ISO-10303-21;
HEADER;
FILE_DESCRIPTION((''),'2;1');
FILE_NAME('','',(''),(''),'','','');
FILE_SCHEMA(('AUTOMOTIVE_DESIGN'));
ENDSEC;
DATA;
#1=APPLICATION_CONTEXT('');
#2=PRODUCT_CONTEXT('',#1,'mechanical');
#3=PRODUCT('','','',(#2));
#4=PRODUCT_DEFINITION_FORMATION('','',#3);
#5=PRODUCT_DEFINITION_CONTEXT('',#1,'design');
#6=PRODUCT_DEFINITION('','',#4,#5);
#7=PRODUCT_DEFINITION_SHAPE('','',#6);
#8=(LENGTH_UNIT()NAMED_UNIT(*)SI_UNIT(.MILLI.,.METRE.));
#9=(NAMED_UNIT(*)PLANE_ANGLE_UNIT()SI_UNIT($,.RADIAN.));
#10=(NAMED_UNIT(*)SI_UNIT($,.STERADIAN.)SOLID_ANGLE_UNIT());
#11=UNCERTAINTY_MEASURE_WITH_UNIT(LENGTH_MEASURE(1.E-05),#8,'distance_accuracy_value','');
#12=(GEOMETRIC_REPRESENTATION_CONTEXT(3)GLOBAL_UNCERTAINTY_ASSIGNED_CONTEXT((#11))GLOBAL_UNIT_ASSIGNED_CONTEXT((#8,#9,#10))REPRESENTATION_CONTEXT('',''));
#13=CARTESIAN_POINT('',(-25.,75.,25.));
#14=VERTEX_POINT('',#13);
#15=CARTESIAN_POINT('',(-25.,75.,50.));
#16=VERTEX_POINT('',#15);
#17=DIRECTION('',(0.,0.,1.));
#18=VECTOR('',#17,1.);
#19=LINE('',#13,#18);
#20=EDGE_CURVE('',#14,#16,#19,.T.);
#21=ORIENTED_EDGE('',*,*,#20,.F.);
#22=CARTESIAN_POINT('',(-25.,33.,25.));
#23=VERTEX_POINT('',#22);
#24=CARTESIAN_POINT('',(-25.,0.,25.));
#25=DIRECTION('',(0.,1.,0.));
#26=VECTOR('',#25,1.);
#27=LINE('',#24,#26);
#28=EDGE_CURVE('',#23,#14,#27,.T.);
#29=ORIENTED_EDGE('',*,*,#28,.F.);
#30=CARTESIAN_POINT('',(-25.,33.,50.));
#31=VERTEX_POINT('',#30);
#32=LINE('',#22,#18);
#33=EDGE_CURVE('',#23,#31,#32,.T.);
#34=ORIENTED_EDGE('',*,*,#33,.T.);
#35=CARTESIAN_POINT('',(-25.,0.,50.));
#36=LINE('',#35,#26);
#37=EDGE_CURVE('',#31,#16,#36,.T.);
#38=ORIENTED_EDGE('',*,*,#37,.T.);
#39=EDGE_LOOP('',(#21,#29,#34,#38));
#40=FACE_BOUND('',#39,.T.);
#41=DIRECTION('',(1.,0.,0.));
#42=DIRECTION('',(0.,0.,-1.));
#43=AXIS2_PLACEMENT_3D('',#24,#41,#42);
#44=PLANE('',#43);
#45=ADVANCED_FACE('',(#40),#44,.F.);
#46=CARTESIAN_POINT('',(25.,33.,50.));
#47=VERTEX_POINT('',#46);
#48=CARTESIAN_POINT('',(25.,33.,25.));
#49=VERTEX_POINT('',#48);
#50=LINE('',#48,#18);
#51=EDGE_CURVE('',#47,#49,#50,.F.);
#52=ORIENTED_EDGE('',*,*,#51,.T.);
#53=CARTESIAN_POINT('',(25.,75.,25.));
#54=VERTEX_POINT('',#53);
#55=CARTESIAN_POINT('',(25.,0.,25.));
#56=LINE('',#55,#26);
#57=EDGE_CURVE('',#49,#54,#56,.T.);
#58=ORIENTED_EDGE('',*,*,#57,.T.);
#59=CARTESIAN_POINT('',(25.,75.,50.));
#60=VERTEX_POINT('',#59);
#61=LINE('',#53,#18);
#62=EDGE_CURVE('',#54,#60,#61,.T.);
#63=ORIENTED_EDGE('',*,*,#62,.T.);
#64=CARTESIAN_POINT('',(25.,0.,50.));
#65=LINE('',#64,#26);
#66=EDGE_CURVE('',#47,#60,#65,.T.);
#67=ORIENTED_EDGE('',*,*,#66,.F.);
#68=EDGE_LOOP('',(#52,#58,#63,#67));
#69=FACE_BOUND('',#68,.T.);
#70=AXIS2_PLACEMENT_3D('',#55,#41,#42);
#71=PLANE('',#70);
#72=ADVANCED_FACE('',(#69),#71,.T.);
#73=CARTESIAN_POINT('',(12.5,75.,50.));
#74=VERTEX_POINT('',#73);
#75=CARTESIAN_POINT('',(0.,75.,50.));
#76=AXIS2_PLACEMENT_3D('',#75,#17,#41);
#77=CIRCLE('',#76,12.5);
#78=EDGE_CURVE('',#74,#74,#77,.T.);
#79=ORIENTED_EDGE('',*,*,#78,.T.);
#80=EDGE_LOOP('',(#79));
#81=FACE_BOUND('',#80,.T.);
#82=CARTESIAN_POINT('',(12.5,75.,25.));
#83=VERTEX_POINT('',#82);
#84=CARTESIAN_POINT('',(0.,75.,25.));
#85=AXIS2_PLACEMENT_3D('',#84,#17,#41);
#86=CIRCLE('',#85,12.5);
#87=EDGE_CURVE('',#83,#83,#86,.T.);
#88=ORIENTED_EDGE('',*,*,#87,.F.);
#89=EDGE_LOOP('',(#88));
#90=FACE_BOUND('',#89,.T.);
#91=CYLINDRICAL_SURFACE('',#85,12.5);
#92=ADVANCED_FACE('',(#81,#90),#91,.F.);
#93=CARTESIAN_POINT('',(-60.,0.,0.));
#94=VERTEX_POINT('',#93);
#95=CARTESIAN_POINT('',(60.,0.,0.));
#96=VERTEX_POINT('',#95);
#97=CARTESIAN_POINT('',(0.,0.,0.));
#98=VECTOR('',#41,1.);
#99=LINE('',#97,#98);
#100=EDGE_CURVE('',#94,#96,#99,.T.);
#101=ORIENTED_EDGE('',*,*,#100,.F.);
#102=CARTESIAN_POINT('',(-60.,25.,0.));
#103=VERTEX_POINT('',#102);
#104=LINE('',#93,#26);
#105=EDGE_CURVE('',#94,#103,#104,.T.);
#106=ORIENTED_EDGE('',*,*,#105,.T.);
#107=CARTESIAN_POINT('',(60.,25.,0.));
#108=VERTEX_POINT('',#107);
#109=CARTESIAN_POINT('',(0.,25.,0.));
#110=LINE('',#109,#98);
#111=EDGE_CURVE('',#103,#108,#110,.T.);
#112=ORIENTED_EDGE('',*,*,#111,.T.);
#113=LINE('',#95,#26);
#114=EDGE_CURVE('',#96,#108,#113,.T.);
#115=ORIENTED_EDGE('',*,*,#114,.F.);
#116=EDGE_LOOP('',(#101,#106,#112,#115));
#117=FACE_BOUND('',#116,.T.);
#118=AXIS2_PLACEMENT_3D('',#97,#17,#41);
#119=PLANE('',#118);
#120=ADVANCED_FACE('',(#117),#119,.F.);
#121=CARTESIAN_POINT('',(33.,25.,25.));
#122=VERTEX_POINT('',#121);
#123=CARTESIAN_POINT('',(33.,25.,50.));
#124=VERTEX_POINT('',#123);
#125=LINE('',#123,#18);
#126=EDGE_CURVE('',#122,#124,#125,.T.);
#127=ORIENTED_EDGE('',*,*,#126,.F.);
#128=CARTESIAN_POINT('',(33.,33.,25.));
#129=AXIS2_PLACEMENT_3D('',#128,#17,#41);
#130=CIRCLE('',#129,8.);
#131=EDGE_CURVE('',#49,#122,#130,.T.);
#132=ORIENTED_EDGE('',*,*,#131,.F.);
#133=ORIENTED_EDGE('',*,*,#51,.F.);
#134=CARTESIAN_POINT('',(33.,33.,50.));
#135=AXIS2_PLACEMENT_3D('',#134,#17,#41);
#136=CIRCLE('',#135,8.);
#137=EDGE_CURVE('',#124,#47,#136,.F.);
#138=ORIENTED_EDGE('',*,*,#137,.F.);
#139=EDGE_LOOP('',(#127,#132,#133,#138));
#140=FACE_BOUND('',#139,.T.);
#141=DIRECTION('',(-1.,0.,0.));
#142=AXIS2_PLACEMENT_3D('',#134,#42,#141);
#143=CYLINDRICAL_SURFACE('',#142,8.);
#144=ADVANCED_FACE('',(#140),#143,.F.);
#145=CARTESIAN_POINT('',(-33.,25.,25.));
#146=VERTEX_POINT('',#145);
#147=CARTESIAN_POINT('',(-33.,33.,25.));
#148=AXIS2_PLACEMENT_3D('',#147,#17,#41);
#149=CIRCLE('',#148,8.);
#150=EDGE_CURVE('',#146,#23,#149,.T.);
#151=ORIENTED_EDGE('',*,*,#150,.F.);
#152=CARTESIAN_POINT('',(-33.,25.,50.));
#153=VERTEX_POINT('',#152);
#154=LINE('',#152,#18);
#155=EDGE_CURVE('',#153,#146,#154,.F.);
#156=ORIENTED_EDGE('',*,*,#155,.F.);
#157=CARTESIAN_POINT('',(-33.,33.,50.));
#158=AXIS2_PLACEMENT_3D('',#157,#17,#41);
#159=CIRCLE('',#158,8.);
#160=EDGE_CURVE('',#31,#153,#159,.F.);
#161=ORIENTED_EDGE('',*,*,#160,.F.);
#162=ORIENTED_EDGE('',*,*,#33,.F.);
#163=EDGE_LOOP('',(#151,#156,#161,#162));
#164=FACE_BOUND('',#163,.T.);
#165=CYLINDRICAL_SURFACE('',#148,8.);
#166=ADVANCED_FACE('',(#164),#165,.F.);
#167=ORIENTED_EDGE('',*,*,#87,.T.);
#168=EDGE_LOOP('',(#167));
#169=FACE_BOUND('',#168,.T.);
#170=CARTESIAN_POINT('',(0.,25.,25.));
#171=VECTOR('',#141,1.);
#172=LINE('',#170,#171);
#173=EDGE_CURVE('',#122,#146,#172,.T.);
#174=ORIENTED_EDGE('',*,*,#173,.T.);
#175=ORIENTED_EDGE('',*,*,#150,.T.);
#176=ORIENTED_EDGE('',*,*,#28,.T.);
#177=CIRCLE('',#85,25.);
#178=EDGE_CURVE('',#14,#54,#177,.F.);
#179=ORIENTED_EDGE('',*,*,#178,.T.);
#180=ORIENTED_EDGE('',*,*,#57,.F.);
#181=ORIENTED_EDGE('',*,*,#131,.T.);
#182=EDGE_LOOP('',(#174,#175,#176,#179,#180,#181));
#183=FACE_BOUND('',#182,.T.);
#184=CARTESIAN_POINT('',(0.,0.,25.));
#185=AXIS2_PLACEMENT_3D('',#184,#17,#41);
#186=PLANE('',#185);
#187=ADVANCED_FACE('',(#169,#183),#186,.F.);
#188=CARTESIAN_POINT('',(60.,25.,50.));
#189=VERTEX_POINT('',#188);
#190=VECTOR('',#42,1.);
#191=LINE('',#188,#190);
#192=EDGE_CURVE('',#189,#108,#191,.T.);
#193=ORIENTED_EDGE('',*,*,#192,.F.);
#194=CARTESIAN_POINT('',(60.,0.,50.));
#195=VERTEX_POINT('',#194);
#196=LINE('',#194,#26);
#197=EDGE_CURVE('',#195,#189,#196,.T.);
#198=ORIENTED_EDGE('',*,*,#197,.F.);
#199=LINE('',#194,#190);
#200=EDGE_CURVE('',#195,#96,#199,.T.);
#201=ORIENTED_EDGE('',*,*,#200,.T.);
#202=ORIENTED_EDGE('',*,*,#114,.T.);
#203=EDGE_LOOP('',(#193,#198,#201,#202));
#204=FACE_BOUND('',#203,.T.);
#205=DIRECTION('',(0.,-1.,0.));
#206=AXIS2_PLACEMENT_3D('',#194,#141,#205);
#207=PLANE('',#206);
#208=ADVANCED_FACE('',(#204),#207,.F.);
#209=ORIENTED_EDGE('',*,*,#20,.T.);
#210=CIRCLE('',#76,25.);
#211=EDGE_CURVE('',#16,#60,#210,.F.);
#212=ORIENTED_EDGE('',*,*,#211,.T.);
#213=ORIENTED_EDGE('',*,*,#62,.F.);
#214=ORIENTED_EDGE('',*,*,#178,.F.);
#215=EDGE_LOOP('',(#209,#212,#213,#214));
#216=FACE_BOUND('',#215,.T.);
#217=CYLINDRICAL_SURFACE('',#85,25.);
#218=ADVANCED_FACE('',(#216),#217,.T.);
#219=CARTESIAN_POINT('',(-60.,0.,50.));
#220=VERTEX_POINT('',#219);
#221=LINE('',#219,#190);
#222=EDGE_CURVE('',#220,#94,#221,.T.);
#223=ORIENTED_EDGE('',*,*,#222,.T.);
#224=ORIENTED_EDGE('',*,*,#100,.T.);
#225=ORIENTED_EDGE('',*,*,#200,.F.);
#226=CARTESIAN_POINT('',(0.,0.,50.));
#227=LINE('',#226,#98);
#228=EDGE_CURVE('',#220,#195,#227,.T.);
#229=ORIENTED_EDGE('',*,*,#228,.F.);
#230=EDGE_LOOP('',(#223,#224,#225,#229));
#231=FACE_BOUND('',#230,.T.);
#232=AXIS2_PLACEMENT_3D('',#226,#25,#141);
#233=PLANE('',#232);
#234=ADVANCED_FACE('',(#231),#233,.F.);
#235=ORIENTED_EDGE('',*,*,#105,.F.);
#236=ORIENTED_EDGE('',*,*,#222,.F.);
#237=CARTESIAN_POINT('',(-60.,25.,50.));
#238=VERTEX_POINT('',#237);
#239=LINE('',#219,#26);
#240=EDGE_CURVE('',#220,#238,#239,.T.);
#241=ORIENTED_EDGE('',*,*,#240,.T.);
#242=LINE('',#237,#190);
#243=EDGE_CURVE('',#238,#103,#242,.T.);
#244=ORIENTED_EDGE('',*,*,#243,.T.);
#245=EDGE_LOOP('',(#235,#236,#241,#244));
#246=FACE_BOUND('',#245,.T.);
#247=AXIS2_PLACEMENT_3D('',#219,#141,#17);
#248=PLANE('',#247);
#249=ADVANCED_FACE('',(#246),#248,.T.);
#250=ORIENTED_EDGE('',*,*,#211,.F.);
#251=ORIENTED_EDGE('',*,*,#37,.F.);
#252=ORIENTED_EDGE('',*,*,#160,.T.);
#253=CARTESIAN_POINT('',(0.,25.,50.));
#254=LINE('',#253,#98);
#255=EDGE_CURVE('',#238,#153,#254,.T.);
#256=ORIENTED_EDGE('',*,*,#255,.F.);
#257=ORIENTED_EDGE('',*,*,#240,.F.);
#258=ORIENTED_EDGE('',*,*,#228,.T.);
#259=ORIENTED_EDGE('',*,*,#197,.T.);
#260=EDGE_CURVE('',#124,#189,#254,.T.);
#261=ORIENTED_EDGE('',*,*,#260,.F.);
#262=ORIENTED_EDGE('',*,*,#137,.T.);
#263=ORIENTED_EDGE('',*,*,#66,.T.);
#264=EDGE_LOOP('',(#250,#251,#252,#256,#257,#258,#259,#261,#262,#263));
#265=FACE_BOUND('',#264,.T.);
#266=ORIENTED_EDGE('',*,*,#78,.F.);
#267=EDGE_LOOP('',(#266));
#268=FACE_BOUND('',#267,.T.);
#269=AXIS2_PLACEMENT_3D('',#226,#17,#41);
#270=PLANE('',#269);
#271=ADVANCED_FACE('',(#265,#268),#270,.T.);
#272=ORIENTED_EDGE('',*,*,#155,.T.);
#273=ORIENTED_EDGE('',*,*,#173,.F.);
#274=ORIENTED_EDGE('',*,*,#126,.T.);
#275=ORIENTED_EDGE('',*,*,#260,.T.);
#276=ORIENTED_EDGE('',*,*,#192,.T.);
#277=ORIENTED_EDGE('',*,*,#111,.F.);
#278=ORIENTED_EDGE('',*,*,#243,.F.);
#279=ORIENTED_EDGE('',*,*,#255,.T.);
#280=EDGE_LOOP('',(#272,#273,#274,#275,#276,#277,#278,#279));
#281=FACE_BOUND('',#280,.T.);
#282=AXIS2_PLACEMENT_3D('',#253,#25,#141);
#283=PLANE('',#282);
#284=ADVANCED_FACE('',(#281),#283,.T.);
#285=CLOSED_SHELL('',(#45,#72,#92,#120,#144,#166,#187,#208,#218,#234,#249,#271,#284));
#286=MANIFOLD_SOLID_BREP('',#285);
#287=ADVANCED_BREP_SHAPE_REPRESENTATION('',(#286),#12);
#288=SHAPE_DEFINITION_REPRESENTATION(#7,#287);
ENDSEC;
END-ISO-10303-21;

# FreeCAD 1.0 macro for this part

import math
import FreeCAD as App
import Part
import Sketcher

V = App.Vector


def edges_at(feature, points):
    """Names of the edges that pass closest to the given points."""
    edges = feature.Shape.Edges
    near = lambda p: min(range(len(edges)), key=lambda i: edges[i].distToShape(Part.Vertex(*p))[0])
    return sorted({f"Edge{near(p) + 1}" for p in points})

doc = App.newDocument("Part")
body = doc.addObject("PartDesign::Body", "Body")

# Sketch on XY plane
sketch1 = body.newObject("Sketcher::SketchObject", "Sketch")
sketch1.AttachmentSupport = (doc.getObject("XY_Plane"), [""])
sketch1.MapMode = "FlatFace"
sketch1.addGeometry([
    Part.LineSegment(V(60, 0, 0), V(60, 25, 0)),
    Part.LineSegment(V(60, 25, 0), V(-60, 25, 0)),
    Part.LineSegment(V(-60, 25, 0), V(-60, 0, 0)),
    Part.LineSegment(V(-60, 0, 0), V(60, 0, 0)),
], False)
sketch1.addConstraint([
    Sketcher.Constraint("Coincident", 0, 2, 1, 1),
    Sketcher.Constraint("Coincident", 1, 2, 2, 1),
    Sketcher.Constraint("Coincident", 2, 2, 3, 1),
    Sketcher.Constraint("Coincident", 3, 2, 0, 1),
    Sketcher.Constraint("Vertical", 0),
    Sketcher.Constraint("Horizontal", 1),
    Sketcher.Constraint("Vertical", 2),
    Sketcher.Constraint("Horizontal", 3),
    Sketcher.Constraint("Symmetric", 2, 2, 3, 2, -1, 1),
    Sketcher.Constraint("DistanceX", 1, 2, 1, 1, 120.0),
    Sketcher.Constraint("DistanceY", 0, 1, 0, 2, 25.0),
])
pad1 = body.newObject("PartDesign::Pad", "Pad")
pad1.Profile = sketch1
pad1.Length = 50

# Sketch on XY plane
sketch2 = body.newObject("Sketcher::SketchObject", "Sketch001")
sketch2.AttachmentSupport = (doc.getObject("XY_Plane"), [""])
sketch2.MapMode = "FlatFace"
sketch2.AttachmentOffset = App.Placement(V(0, 0, 50), App.Rotation())
sketch2.addGeometry([
    Part.LineSegment(V(-25, 75, 0), V(-25, 25, 0)),  # 0
    Part.LineSegment(V(-25, 25, 0), V(25, 25, 0)),  # 1
    Part.LineSegment(V(25, 25, 0), V(25, 75, 0)),  # 2
    Part.ArcOfCircle(Part.Circle(V(0, 75, 0), V(0, 0, 1), 25), math.radians(0), math.radians(180)),  # 3
    Part.Circle(V(0, 75, 0), V(0, 0, 1), 12.5),  # 4
], False)
sketch2.addConstraint([
    Sketcher.Constraint("Coincident", 0, 2, 1, 1),
    Sketcher.Constraint("Coincident", 1, 2, 2, 1),
    Sketcher.Constraint("Tangent", 2, 2, 3, 1),
    Sketcher.Constraint("Tangent", 3, 2, 0, 1),
    Sketcher.Constraint("Vertical", 0),
    Sketcher.Constraint("Horizontal", 1),
    Sketcher.Constraint("Vertical", 2),
    Sketcher.Constraint("Coincident", 4, 3, 3, 3),
    Sketcher.Constraint("PointOnObject", 3, 3, -2),
    Sketcher.Constraint("Equal", 1, 0),
    Sketcher.Constraint("Diameter", 4, 25.0),
    Sketcher.Constraint("Radius", 3, 25.0),
    Sketcher.Constraint("DistanceY", -1, 1, 3, 3, 75.0),
])
pad2 = body.newObject("PartDesign::Pad", "Pad001")
pad2.Profile = sketch2
pad2.Length = 25
pad2.Reversed = True
doc.recompute()

fillet = body.newObject("PartDesign::Fillet", "Fillet")
fillet.Base = (pad2, edges_at(pad2, [(25, 25, 37.5), (-25, 25, 37.5)]))
fillet.Radius = 8

doc.recompute()
